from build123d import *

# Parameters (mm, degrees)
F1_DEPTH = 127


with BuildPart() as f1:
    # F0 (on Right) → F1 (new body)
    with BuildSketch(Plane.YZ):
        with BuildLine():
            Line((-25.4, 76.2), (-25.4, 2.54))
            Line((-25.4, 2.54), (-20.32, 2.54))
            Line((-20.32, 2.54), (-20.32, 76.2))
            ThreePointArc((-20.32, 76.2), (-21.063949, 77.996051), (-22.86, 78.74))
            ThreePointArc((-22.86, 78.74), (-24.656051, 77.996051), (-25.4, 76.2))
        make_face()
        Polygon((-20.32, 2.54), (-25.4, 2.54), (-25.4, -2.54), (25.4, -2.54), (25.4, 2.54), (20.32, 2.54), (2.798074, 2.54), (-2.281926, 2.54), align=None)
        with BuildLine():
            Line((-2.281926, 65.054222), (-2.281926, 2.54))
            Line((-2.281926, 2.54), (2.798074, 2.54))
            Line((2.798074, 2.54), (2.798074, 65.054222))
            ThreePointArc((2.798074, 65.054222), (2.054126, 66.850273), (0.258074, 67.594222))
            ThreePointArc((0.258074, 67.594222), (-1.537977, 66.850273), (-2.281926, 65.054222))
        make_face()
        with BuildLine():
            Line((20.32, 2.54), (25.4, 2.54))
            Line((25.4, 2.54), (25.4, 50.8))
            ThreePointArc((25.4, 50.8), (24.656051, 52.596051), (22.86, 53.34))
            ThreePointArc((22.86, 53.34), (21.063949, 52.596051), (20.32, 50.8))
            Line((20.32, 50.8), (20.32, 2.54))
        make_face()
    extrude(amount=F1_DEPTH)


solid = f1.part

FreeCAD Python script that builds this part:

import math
import FreeCAD as App
import Part
import Sketcher
from FreeCAD import Vector
Q = App.Units.Quantity

doc = App.newDocument("Part")
params = doc.addObject("Spreadsheet::Sheet", "Params")
for row, (alias, value) in enumerate([
    ("sketch1_radius", "0.1 in"),
    ("sketch1_width", "2 in"),
    ("sketch1_height", "3.1 in"),
    ("sketch1_height2", "2.1 in"),
    ("sketch1_height3", "1.9 in"),
    ("pad1_length", "5 in"),
], start=1):
    params.set(f"A{row}", alias)
    params.set(f"B{row}", "=" + value)
    params.setAlias(f"B{row}", alias)

body = doc.addObject("PartDesign::Body", "Body")

# Sketch on YZ plane
sketch1 = doc.addObject("Sketcher::SketchObject", "Sketch")
body.addObject(sketch1)
sketch1.AttachmentSupport = (doc.YZ_Plane, [""])
sketch1.MapMode = "FlatFace"
sketch1.addGeometry(Part.LineSegment(Vector(-25.4, 76.2, 0), Vector(-25.4, -2.5, 0)), False)
sketch1.addGeometry(Part.LineSegment(Vector(-25.4, -2.5, 0), Vector(25.4, -2.5, 0)), False)
sketch1.addGeometry(Part.LineSegment(Vector(25.4, -2.5, 0), Vector(25.4, 50.8, 0)), False)
sketch1.addGeometry(Part.ArcOfCircle(Part.Circle(Vector(22.9, 50.8, 0), Vector(0, 0, 1), 2.5), math.radians(0), math.radians(90)), False)
sketch1.addGeometry(Part.ArcOfCircle(Part.Circle(Vector(22.9, 50.8, 0), Vector(0, 0, 1), 2.5), math.radians(90), math.radians(180)), False)
sketch1.addGeometry(Part.LineSegment(Vector(20.3, 50.8, 0), Vector(20.3, 2.5, 0)), False)
sketch1.addGeometry(Part.LineSegment(Vector(20.3, 2.5, 0), Vector(2.8, 2.5, 0)), False)
sketch1.addGeometry(Part.LineSegment(Vector(2.8, 2.5, 0), Vector(2.8, 65.1, 0)), False)
sketch1.addGeometry(Part.ArcOfCircle(Part.Circle(Vector(0.3, 65.1, 0), Vector(0, 0, 1), 2.5), math.radians(0), math.radians(90)), False)
sketch1.addGeometry(Part.ArcOfCircle(Part.Circle(Vector(0.3, 65.1, 0), Vector(0, 0, 1), 2.5), math.radians(90), math.radians(180)), False)
sketch1.addGeometry(Part.LineSegment(Vector(-2.3, 65.1, 0), Vector(-2.3, 2.5, 0)), False)
sketch1.addGeometry(Part.LineSegment(Vector(-2.3, 2.5, 0), Vector(-20.3, 2.5, 0)), False)
sketch1.addGeometry(Part.LineSegment(Vector(-20.3, 2.5, 0), Vector(-20.3, 76.2, 0)), False)
sketch1.addGeometry(Part.ArcOfCircle(Part.Circle(Vector(-22.9, 76.2, 0), Vector(0, 0, 1), 2.5), math.radians(0), math.radians(90)), False)
sketch1.addGeometry(Part.ArcOfCircle(Part.Circle(Vector(-22.9, 76.2, 0), Vector(0, 0, 1), 2.5), math.radians(90), math.radians(180)), False)
sketch1.addConstraint(Sketcher.Constraint("Coincident", 0, 2, 1, 1))
sketch1.addConstraint(Sketcher.Constraint("Coincident", 1, 2, 2, 1))
sketch1.addConstraint(Sketcher.Constraint("Tangent", 2, 2, 3, 1))
sketch1.addConstraint(Sketcher.Constraint("Tangent", 3, 2, 4, 1))
sketch1.addConstraint(Sketcher.Constraint("Tangent", 4, 2, 5, 1))
sketch1.addConstraint(Sketcher.Constraint("Coincident", 5, 2, 6, 1))
sketch1.addConstraint(Sketcher.Constraint("Coincident", 6, 2, 7, 1))
sketch1.addConstraint(Sketcher.Constraint("Tangent", 7, 2, 8, 1))
sketch1.addConstraint(Sketcher.Constraint("Tangent", 8, 2, 9, 1))
sketch1.addConstraint(Sketcher.Constraint("Tangent", 9, 2, 10, 1))
sketch1.addConstraint(Sketcher.Constraint("Coincident", 10, 2, 11, 1))
sketch1.addConstraint(Sketcher.Constraint("Coincident", 11, 2, 12, 1))
sketch1.addConstraint(Sketcher.Constraint("Tangent", 12, 2, 13, 1))
sketch1.addConstraint(Sketcher.Constraint("Tangent", 13, 2, 14, 1))
sketch1.addConstraint(Sketcher.Constraint("Tangent", 14, 2, 0, 1))
sketch1.addConstraint(Sketcher.Constraint("Vertical", 0))
sketch1.addConstraint(Sketcher.Constraint("Horizontal", 1))
sketch1.addConstraint(Sketcher.Constraint("Vertical", 2))
sketch1.addConstraint(Sketcher.Constraint("Vertical", 5))
sketch1.addConstraint(Sketcher.Constraint("Horizontal", 6))
sketch1.addConstraint(Sketcher.Constraint("Vertical", 7))
sketch1.addConstraint(Sketcher.Constraint("Vertical", 10))
sketch1.addConstraint(Sketcher.Constraint("Horizontal", 11))
sketch1.addConstraint(Sketcher.Constraint("Vertical", 12))
sketch1.addConstraint(Sketcher.Constraint("Equal", 3, 4))
sketch1.addConstraint(Sketcher.Constraint("Equal", 4, 8))
sketch1.addConstraint(Sketcher.Constraint("Equal", 8, 9))
sketch1.addConstraint(Sketcher.Constraint("Equal", 9, 13))
sketch1.addConstraint(Sketcher.Constraint("Equal", 13, 14))
sketch1.addConstraint(Sketcher.Constraint("Symmetric", 5, 2, 11, 2, -2))
sketch1.addConstraint(Sketcher.Constraint("Vertical", 4, 3, 3, 2))
sketch1.addConstraint(Sketcher.Constraint("Vertical", 9, 3, 8, 2))
sketch1.addConstraint(Sketcher.Constraint("Vertical", 14, 3, 13, 2))
sketch1.addConstraint(Sketcher.Constraint("Radius", 3, Q("0.1 in")))
sketch1.addConstraint(Sketcher.Constraint("DistanceX", 1, 1, 1, 2, Q("2 in")))
sketch1.addConstraint(Sketcher.Constraint("DistanceY", 0, 2, 0, 1, Q("3.1 in")))
sketch1.addConstraint(Sketcher.Constraint("DistanceY", 2, 1, 2, 2, Q("2.1 in")))
sketch1.addConstraint(Sketcher.Constraint("DistanceY", 5, 2, 5, 1, Q("1.9 in")))
sketch1.addConstraint(Sketcher.Constraint("DistanceY", -1, 1, 3, 3, Q("2 in")))
sketch1.addConstraint(Sketcher.Constraint("DistanceY", 7, 1, 7, 2, Q("62.514222 mm")))
sketch1.addConstraint(Sketcher.Constraint("DistanceX", 6, 2, 6, 1, Q("17.521926 mm")))
sketch1.setExpression("Constraints[33]", "Params.sketch1_radius")
sketch1.setExpression("Constraints[34]", "Params.sketch1_width")
sketch1.setExpression("Constraints[35]", "Params.sketch1_height")
sketch1.setExpression("Constraints[36]", "Params.sketch1_height2")
sketch1.setExpression("Constraints[37]", "Params.sketch1_height3")
pad1 = doc.addObject("PartDesign::Pad", "Pad")
body.addObject(pad1)
pad1.Profile = sketch1
pad1.setExpression("Length", "Params.pad1_length")

doc.recompute()
